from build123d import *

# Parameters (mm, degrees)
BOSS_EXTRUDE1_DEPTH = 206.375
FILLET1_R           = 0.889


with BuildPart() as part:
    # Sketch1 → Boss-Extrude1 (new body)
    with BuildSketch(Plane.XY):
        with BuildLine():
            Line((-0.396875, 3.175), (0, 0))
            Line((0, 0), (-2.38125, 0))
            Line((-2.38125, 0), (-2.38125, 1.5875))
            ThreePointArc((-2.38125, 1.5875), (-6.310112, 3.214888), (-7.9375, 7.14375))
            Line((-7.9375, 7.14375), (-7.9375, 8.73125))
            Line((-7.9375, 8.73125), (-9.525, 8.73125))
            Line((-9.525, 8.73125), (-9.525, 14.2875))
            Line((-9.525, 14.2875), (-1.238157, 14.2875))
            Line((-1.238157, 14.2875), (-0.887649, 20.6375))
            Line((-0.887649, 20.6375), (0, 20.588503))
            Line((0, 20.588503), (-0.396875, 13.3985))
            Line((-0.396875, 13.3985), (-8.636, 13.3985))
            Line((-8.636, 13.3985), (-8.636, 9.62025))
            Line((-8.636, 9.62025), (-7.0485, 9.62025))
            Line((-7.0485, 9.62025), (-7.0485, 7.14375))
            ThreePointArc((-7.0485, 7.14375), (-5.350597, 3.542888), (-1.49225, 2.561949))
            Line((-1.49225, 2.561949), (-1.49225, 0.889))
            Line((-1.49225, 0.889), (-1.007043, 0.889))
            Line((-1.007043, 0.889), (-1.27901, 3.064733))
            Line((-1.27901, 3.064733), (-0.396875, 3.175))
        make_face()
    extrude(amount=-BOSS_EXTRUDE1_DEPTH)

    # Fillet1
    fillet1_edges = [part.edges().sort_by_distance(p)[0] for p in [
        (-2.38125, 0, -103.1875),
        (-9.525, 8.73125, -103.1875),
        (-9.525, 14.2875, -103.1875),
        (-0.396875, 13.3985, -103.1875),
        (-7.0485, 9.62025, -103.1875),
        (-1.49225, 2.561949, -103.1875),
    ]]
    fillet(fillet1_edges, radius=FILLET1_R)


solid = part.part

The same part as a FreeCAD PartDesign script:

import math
import FreeCAD as App
import Part
import Sketcher
from FreeCAD import Vector
Q = App.Units.Quantity


def edges_at(feature, points):
    """Names of the edges that pass closest to the given points."""
    edges = feature.Shape.Edges
    near = lambda p: min(range(len(edges)), key=lambda i: edges[i].distToShape(Part.Vertex(*p))[0])
    return sorted({f"Edge{near(p) + 1}" for p in points})

doc = App.newDocument("Part")
body = doc.addObject("PartDesign::Body", "Body")

sketch1 = body.newObject("Sketcher::SketchObject", "Sketch")
sketch1.AttachmentSupport = (doc.getObject("XY_Plane"), [""])
sketch1.MapMode = "FlatFace"
sketch1.addGeometry([
    Part.LineSegment(Vector(0, 0, 0), Vector(-0.396875, 3.175, 0)),
    Part.LineSegment(Vector(-0.396875, 3.175, 0), Vector(-1.27901, 3.064733, 0)),
    Part.LineSegment(Vector(-1.27901, 3.064733, 0), Vector(-1.007043, 0.889, 0)),
    Part.LineSegment(Vector(-1.007043, 0.889, 0), Vector(-1.49225, 0.889, 0)),
    Part.LineSegment(Vector(-1.49225, 0.889, 0), Vector(-1.49225, 2.561949, 0)),
    Part.ArcOfCircle(Part.Circle(Vector(-2.381251, 7.143749, 0), Vector(0, 0, 1), 4.667249), math.radians(179.999982), math.radians(280.980595)),
    Part.LineSegment(Vector(-7.0485, 7.14375, 0), Vector(-7.0485, 9.62025, 0)),
    Part.LineSegment(Vector(-7.0485, 9.62025, 0), Vector(-8.636, 9.62025, 0)),
    Part.LineSegment(Vector(-8.636, 9.62025, 0), Vector(-8.636, 13.3985, 0)),
    Part.LineSegment(Vector(-8.636, 13.3985, 0), Vector(-0.396875, 13.3985, 0)),
    Part.LineSegment(Vector(-0.396875, 13.3985, 0), Vector(0, 20.588503, 0)),
    Part.LineSegment(Vector(0, 20.588503, 0), Vector(-0.887649, 20.6375, 0)),
    Part.LineSegment(Vector(-0.887649, 20.6375, 0), Vector(-1.238157, 14.2875, 0)),
    Part.LineSegment(Vector(-1.238157, 14.2875, 0), Vector(-9.525, 14.2875, 0)),
    Part.LineSegment(Vector(-9.525, 14.2875, 0), Vector(-9.525, 8.73125, 0)),
    Part.LineSegment(Vector(-9.525, 8.73125, 0), Vector(-7.9375, 8.73125, 0)),
    Part.LineSegment(Vector(-7.9375, 8.73125, 0), Vector(-7.9375, 7.14375, 0)),
    Part.ArcOfCircle(Part.Circle(Vector(-2.38125, 7.14375, 0), Vector(0, 0, 1), 5.55625), math.radians(-179.999998), math.radians(-90.000002)),
    Part.LineSegment(Vector(-2.38125, 1.5875, 0), Vector(-2.38125, 0, 0)),
    Part.LineSegment(Vector(-2.38125, 0, 0), Vector(0, 0, 0)),
], False)
sketch1.addConstraint([
    Sketcher.Constraint("Coincident", 0, 2, 1, 1),
    Sketcher.Constraint("Coincident", 1, 2, 2, 1),
    Sketcher.Constraint("Coincident", 2, 2, 3, 1),
    Sketcher.Constraint("Coincident", 3, 2, 4, 1),
    Sketcher.Constraint("Coincident", 4, 2, 5, 2),
    Sketcher.Constraint("Tangent", 5, 1, 6, 1),
    Sketcher.Constraint("Coincident", 6, 2, 7, 1),
    Sketcher.Constraint("Coincident", 7, 2, 8, 1),
    Sketcher.Constraint("Coincident", 8, 2, 9, 1),
    Sketcher.Constraint("Coincident", 9, 2, 10, 1),
    Sketcher.Constraint("Coincident", 10, 2, 11, 1),
    Sketcher.Constraint("Coincident", 11, 2, 12, 1),
    Sketcher.Constraint("Coincident", 12, 2, 13, 1),
    Sketcher.Constraint("Coincident", 13, 2, 14, 1),
    Sketcher.Constraint("Coincident", 14, 2, 15, 1),
    Sketcher.Constraint("Coincident", 15, 2, 16, 1),
    Sketcher.Constraint("Tangent", 16, 2, 17, 1),
    Sketcher.Constraint("Coincident", 17, 2, 18, 1),
    Sketcher.Constraint("Coincident", 18, 2, 19, 1),
    Sketcher.Constraint("Coincident", 19, 2, 0, 1),
    Sketcher.Constraint("Horizontal", 3),
    Sketcher.Constraint("Vertical", 4),
    Sketcher.Constraint("Vertical", 6),
    Sketcher.Constraint("Horizontal", 7),
    Sketcher.Constraint("Vertical", 8),
    Sketcher.Constraint("Horizontal", 9),
    Sketcher.Constraint("Horizontal", 13),
    Sketcher.Constraint("Vertical", 14),
    Sketcher.Constraint("Horizontal", 15),
    Sketcher.Constraint("Vertical", 16),
    Sketcher.Constraint("Vertical", 18),
    Sketcher.Constraint("Horizontal", 19),
    Sketcher.Constraint("Coincident", 19, 2, -1, 1),
    Sketcher.Constraint("Coincident", 17, 3, 5, 3),
    Sketcher.Constraint("PointOnObject", 10, 2, -2),
    Sketcher.Constraint("Perpendicular", 0, 1),
    Sketcher.Constraint("Perpendicular", 1, 2),
    Sketcher.Constraint("Perpendicular", 10, 11),
    Sketcher.Constraint("Perpendicular", 11, 12),
    Sketcher.Constraint("Vertical", 0, 2, 9, 2),
    Sketcher.Constraint("Vertical", 5, 3, 17, 2),
    Sketcher.Constraint("Equal", 7, 15),
    Sketcher.Constraint("Equal", 15, 16),
    Sketcher.Constraint("Equal", 16, 18),
    Sketcher.Constraint("Equal", 1, 11),
    Sketcher.Constraint("Radius", 17, Q("0.21875 in")),
    Sketcher.Constraint("DistanceX", 7, 2, 7, 1, Q("0.0625 in")),
    Sketcher.Constraint("DistanceX", 19, 1, 19, 2, Q("0.09375 in")),
    Sketcher.Constraint("DistanceY", 14, 2, 14, 1, Q("0.21875 in")),
    Sketcher.Constraint("DistanceX", 7, 2, -1, 1, Q("0.34 in")),
    Sketcher.Constraint("DistanceY", 2, 2, 0, 2, Q("0.09 in")),
    Sketcher.Constraint("DistanceY", 12, 2, 11, 2, Q("0.25 in")),
    Sketcher.Constraint("Distance", 1, Q("0.035 in")),
    Sketcher.Constraint("DistanceY", 6, 1, 6, 2, Q("0.0975 in")),
    Sketcher.Constraint("DistanceX", 0, 2, -1, 1, Q("0.015625 in")),
    Sketcher.Constraint("DistanceY", -1, 1, 0, 2, Q("0.125 in")),
    Sketcher.Constraint("DistanceX", 5, 3, 3, 2, Q("0.0350001 in")),
    Sketcher.Constraint("DistanceY", 9, 2, 11, 2, Q("0.285 in")),
])
pad1 = body.newObject("PartDesign::Pad", "Pad")
pad1.Profile = sketch1
pad1.Length = Q("8.125 in")
pad1.Reversed = True
doc.recompute()

fillet = body.newObject("PartDesign::Fillet", "Fillet")
fillet.Base = (pad1, edges_at(pad1, [
    (-2.381, 0, -103.188),
    (-9.525, 8.731, -103.188),
    (-9.525, 14.287, -103.188),
    (-0.397, 13.399, -103.188),
    (-7.048, 9.62, -103.188),
    (-1.492, 2.562, -103.188),
]))
fillet.Radius = Q("0.035 in")

doc.recompute()
